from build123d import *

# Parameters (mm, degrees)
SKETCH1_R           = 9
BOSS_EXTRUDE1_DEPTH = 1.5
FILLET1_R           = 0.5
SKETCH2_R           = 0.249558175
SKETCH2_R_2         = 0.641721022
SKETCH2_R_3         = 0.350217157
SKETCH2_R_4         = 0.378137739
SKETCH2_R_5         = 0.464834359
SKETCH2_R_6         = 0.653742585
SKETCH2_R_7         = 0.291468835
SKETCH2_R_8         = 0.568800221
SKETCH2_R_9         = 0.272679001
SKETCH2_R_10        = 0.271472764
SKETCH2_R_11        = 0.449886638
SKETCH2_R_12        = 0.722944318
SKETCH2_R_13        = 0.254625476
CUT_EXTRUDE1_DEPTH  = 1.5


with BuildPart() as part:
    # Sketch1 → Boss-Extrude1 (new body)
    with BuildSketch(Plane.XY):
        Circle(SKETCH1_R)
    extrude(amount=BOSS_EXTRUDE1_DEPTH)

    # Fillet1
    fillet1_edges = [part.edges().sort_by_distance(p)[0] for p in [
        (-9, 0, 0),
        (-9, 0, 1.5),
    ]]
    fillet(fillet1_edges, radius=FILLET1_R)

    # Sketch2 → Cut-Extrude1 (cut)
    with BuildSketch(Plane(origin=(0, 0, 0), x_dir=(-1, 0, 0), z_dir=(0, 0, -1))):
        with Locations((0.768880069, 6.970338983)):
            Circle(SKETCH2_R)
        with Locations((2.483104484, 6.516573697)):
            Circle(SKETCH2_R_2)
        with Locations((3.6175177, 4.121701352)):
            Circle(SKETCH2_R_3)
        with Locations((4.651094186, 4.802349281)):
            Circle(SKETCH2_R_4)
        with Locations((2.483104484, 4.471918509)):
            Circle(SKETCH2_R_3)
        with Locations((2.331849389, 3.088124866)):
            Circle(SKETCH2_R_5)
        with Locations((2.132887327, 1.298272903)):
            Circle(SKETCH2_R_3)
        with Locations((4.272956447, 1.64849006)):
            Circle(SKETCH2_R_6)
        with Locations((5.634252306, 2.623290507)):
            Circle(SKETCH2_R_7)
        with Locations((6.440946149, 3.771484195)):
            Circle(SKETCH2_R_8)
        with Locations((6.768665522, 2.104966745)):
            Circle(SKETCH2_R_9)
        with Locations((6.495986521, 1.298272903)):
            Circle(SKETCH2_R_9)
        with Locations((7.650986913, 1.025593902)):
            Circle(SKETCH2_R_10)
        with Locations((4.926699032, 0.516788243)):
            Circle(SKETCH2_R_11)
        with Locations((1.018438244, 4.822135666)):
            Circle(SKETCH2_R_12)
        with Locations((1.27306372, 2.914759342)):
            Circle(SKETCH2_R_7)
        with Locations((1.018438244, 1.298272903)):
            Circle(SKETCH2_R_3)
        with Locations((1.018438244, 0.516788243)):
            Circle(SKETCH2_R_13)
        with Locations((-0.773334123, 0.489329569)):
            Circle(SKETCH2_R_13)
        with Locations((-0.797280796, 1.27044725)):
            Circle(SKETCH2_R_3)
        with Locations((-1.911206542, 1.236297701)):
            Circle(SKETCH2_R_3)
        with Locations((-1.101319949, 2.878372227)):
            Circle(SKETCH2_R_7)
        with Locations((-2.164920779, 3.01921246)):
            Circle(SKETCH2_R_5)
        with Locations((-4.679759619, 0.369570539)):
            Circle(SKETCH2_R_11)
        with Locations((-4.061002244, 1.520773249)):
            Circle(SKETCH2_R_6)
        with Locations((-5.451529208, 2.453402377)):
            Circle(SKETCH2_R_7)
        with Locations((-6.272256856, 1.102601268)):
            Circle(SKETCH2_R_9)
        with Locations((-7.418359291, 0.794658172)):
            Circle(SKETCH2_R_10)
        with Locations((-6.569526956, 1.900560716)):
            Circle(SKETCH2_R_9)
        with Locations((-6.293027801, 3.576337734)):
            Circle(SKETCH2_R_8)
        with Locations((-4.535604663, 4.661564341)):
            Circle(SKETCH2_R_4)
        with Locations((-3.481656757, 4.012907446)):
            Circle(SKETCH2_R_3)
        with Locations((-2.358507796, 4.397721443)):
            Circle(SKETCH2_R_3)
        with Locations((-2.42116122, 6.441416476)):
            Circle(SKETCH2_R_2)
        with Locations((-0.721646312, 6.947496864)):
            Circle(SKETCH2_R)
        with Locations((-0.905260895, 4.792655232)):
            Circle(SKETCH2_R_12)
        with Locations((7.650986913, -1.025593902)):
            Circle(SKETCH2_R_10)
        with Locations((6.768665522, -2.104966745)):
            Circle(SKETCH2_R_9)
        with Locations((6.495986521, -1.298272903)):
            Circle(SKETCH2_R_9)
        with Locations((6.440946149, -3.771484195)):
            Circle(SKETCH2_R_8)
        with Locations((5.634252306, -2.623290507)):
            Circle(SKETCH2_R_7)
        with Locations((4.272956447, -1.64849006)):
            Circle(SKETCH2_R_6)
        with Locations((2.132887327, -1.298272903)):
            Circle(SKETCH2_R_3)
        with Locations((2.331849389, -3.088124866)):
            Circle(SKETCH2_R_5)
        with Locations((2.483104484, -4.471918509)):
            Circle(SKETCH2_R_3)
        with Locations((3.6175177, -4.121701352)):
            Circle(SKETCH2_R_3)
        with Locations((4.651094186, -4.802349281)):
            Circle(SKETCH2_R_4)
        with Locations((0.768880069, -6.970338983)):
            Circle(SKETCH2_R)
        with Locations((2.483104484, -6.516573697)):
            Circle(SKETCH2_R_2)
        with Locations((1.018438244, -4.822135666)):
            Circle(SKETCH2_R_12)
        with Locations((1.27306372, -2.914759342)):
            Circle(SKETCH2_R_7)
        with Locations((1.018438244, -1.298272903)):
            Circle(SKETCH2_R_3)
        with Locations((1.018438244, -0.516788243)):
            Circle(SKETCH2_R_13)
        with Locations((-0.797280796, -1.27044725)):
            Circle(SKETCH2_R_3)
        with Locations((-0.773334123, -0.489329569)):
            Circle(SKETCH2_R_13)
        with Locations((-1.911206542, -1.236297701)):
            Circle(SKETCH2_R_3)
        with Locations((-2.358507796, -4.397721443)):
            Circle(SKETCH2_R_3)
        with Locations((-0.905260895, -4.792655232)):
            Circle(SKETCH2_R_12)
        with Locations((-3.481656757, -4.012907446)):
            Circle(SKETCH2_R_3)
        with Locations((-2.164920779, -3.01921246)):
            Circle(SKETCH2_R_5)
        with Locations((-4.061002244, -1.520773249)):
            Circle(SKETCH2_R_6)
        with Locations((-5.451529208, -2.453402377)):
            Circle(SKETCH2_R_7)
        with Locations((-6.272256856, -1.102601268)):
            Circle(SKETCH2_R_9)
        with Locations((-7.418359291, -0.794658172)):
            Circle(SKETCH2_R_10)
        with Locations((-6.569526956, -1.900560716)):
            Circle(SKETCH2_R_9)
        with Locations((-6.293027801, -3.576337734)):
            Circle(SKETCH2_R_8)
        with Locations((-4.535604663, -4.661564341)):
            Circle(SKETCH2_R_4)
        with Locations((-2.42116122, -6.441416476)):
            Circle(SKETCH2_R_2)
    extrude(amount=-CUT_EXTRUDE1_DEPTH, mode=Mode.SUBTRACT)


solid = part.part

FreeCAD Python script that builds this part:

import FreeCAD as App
import Part
import Sketcher
Q = App.Units.Quantity


def edges_at(feature, points):
    """Names of the edges that pass closest to the given points."""
    edges = feature.Shape.Edges
    near = lambda p: min(range(len(edges)), key=lambda i: edges[i].distToShape(Part.Vertex(*p))[0])
    return sorted({f"Edge{near(p) + 1}" for p in points})

doc = App.newDocument("Part")
body = doc.addObject("PartDesign::Body", "Body")

# Sketch on XY plane
sketch1 = doc.addObject("Sketcher::SketchObject", "Sketch")
body.addObject(sketch1)
sketch1.AttachmentSupport = (doc.XY_Plane, [""])
sketch1.MapMode = "FlatFace"
sketch1.addGeometry(Part.Circle(App.Vector(0, 0, 0), App.Vector(0, 0, 1), 9), False)
sketch1.addConstraint([
    Sketcher.Constraint("Coincident", 0, 3, -1, 1),
    Sketcher.Constraint("Diameter", 0, Q("18 mm")),
])
pad1 = doc.addObject("PartDesign::Pad", "Pad")
body.addObject(pad1)
pad1.Profile = sketch1
pad1.Length = 1.5
doc.recompute()

fillet = doc.addObject("PartDesign::Fillet", "Fillet")
body.addObject(fillet)
fillet.Base = (pad1, edges_at(pad1, [(-9, 0, 0), (-9, 0, 1.5)]))
fillet.Radius = 0.5

# Sketch on XY plane
sketch2 = doc.addObject("Sketcher::SketchObject", "Sketch001")
body.addObject(sketch2)
sketch2.AttachmentSupport = (doc.XY_Plane, [""])
sketch2.MapMode = "FlatFace"
sketch2.addGeometry([
    Part.Circle(App.Vector(-0.77, 6.97, 0), App.Vector(0, 0, 1), 0.25),  # 0
    Part.Circle(App.Vector(-2.48, 6.52, 0), App.Vector(0, 0, 1), 0.64),  # 1
    Part.Circle(App.Vector(-3.62, 4.12, 0), App.Vector(0, 0, 1), 0.35),  # 2
    Part.Circle(App.Vector(-4.65, 4.8, 0), App.Vector(0, 0, 1), 0.38),  # 3
    Part.Circle(App.Vector(-2.48, 4.47, 0), App.Vector(0, 0, 1), 0.35),  # 4
    Part.Circle(App.Vector(-2.33, 3.09, 0), App.Vector(0, 0, 1), 0.46),  # 5
    Part.Circle(App.Vector(-2.13, 1.3, 0), App.Vector(0, 0, 1), 0.35),  # 6
    Part.Circle(App.Vector(-4.27, 1.65, 0), App.Vector(0, 0, 1), 0.65),  # 7
    Part.Circle(App.Vector(-5.63, 2.62, 0), App.Vector(0, 0, 1), 0.29),  # 8
    Part.Circle(App.Vector(-6.44, 3.77, 0), App.Vector(0, 0, 1), 0.57),  # 9
    Part.Circle(App.Vector(-6.77, 2.1, 0), App.Vector(0, 0, 1), 0.27),  # 10
    Part.Circle(App.Vector(-6.5, 1.3, 0), App.Vector(0, 0, 1), 0.27),  # 11
    Part.Circle(App.Vector(-7.65, 1.03, 0), App.Vector(0, 0, 1), 0.27),  # 12
    Part.Circle(App.Vector(-4.93, 0.52, 0), App.Vector(0, 0, 1), 0.45),  # 13
    Part.Circle(App.Vector(-1.02, 4.82, 0), App.Vector(0, 0, 1), 0.72),  # 14
    Part.Circle(App.Vector(-1.27, 2.91, 0), App.Vector(0, 0, 1), 0.29),  # 15
    Part.Circle(App.Vector(-1.02, 1.3, 0), App.Vector(0, 0, 1), 0.35),  # 16
    Part.Circle(App.Vector(-1.02, 0.52, 0), App.Vector(0, 0, 1), 0.25),  # 17
    Part.Circle(App.Vector(0.77, 0.49, 0), App.Vector(0, 0, 1), 0.25),  # 18
    Part.Circle(App.Vector(0.8, 1.27, 0), App.Vector(0, 0, 1), 0.35),  # 19
    Part.Circle(App.Vector(1.91, 1.24, 0), App.Vector(0, 0, 1), 0.35),  # 20
    Part.Circle(App.Vector(1.1, 2.88, 0), App.Vector(0, 0, 1), 0.29),  # 21
    Part.Circle(App.Vector(2.16, 3.02, 0), App.Vector(0, 0, 1), 0.46),  # 22
    Part.Circle(App.Vector(4.68, 0.37, 0), App.Vector(0, 0, 1), 0.45),  # 23
    Part.Circle(App.Vector(4.06, 1.52, 0), App.Vector(0, 0, 1), 0.65),  # 24
    Part.Circle(App.Vector(5.45, 2.45, 0), App.Vector(0, 0, 1), 0.29),  # 25
    Part.Circle(App.Vector(6.27, 1.1, 0), App.Vector(0, 0, 1), 0.27),  # 26
    Part.Circle(App.Vector(7.42, 0.79, 0), App.Vector(0, 0, 1), 0.27),  # 27
    Part.Circle(App.Vector(6.57, 1.9, 0), App.Vector(0, 0, 1), 0.27),  # 28
    Part.Circle(App.Vector(6.29, 3.58, 0), App.Vector(0, 0, 1), 0.57),  # 29
    Part.Circle(App.Vector(4.54, 4.66, 0), App.Vector(0, 0, 1), 0.38),  # 30
    Part.Circle(App.Vector(3.48, 4.01, 0), App.Vector(0, 0, 1), 0.35),  # 31
    Part.Circle(App.Vector(2.36, 4.4, 0), App.Vector(0, 0, 1), 0.35),  # 32
    Part.Circle(App.Vector(2.42, 6.44, 0), App.Vector(0, 0, 1), 0.64),  # 33
    Part.Circle(App.Vector(0.72, 6.95, 0), App.Vector(0, 0, 1), 0.25),  # 34
    Part.Circle(App.Vector(0.91, 4.79, 0), App.Vector(0, 0, 1), 0.72),  # 35
    Part.Circle(App.Vector(-7.65, -1.03, 0), App.Vector(0, 0, 1), 0.27),  # 36
    Part.Circle(App.Vector(-6.77, -2.1, 0), App.Vector(0, 0, 1), 0.27),  # 37
    Part.Circle(App.Vector(-6.5, -1.3, 0), App.Vector(0, 0, 1), 0.27),  # 38
    Part.Circle(App.Vector(-6.44, -3.77, 0), App.Vector(0, 0, 1), 0.57),  # 39
    Part.Circle(App.Vector(-5.63, -2.62, 0), App.Vector(0, 0, 1), 0.29),  # 40
    Part.Circle(App.Vector(-4.27, -1.65, 0), App.Vector(0, 0, 1), 0.65),  # 41
    Part.Circle(App.Vector(-2.13, -1.3, 0), App.Vector(0, 0, 1), 0.35),  # 42
    Part.Circle(App.Vector(-2.33, -3.09, 0), App.Vector(0, 0, 1), 0.46),  # 43
    Part.Circle(App.Vector(-2.48, -4.47, 0), App.Vector(0, 0, 1), 0.35),  # 44
    Part.Circle(App.Vector(-3.62, -4.12, 0), App.Vector(0, 0, 1), 0.35),  # 45
    Part.Circle(App.Vector(-4.65, -4.8, 0), App.Vector(0, 0, 1), 0.38),  # 46
    Part.Circle(App.Vector(-0.77, -6.97, 0), App.Vector(0, 0, 1), 0.25),  # 47
    Part.Circle(App.Vector(-2.48, -6.52, 0), App.Vector(0, 0, 1), 0.64),  # 48
    Part.Circle(App.Vector(-1.02, -4.82, 0), App.Vector(0, 0, 1), 0.72),  # 49
    Part.Circle(App.Vector(-1.27, -2.91, 0), App.Vector(0, 0, 1), 0.29),  # 50
    Part.Circle(App.Vector(-1.02, -1.3, 0), App.Vector(0, 0, 1), 0.35),  # 51
    Part.Circle(App.Vector(-1.02, -0.52, 0), App.Vector(0, 0, 1), 0.25),  # 52
    Part.Circle(App.Vector(0.8, -1.27, 0), App.Vector(0, 0, 1), 0.35),  # 53
    Part.Circle(App.Vector(0.77, -0.49, 0), App.Vector(0, 0, 1), 0.25),  # 54
    Part.Circle(App.Vector(1.91, -1.24, 0), App.Vector(0, 0, 1), 0.35),  # 55
    Part.Circle(App.Vector(2.36, -4.4, 0), App.Vector(0, 0, 1), 0.35),  # 56
    Part.Circle(App.Vector(0.91, -4.79, 0), App.Vector(0, 0, 1), 0.72),  # 57
    Part.Circle(App.Vector(3.48, -4.01, 0), App.Vector(0, 0, 1), 0.35),  # 58
    Part.Circle(App.Vector(2.16, -3.02, 0), App.Vector(0, 0, 1), 0.46),  # 59
    Part.Circle(App.Vector(4.06, -1.52, 0), App.Vector(0, 0, 1), 0.65),  # 60
    Part.Circle(App.Vector(5.45, -2.45, 0), App.Vector(0, 0, 1), 0.29),  # 61
    Part.Circle(App.Vector(6.27, -1.1, 0), App.Vector(0, 0, 1), 0.27),  # 62
    Part.Circle(App.Vector(7.42, -0.79, 0), App.Vector(0, 0, 1), 0.27),  # 63
    Part.Circle(App.Vector(6.57, -1.9, 0), App.Vector(0, 0, 1), 0.27),  # 64
    Part.Circle(App.Vector(6.29, -3.58, 0), App.Vector(0, 0, 1), 0.57),  # 65
    Part.Circle(App.Vector(4.54, -4.66, 0), App.Vector(0, 0, 1), 0.38),  # 66
    Part.Circle(App.Vector(2.42, -6.44, 0), App.Vector(0, 0, 1), 0.64),  # 67
], False)
sketch2.addConstraint([
    Sketcher.Constraint("Equal", 2, 4),
    Sketcher.Constraint("Equal", 4, 6),
    Sketcher.Constraint("Equal", 10, 11),
    Sketcher.Constraint("Equal", 8, 15),
    Sketcher.Constraint("Equal", 6, 16),
    Sketcher.Constraint("Equal", 17, 18),
    Sketcher.Constraint("Equal", 16, 19),
    Sketcher.Constraint("Equal", 19, 20),
    Sketcher.Constraint("Equal", 15, 21),
    Sketcher.Constraint("Equal", 5, 22),
    Sketcher.Constraint("Equal", 13, 23),
    Sketcher.Constraint("Equal", 7, 24),
    Sketcher.Constraint("Equal", 21, 25),
    Sketcher.Constraint("Equal", 11, 26),
    Sketcher.Constraint("Equal", 12, 27),
    Sketcher.Constraint("Equal", 26, 28),
    Sketcher.Constraint("Equal", 9, 29),
    Sketcher.Constraint("Equal", 3, 30),
    Sketcher.Constraint("Equal", 20, 31),
    Sketcher.Constraint("Equal", 31, 32),
    Sketcher.Constraint("Equal", 1, 33),
    Sketcher.Constraint("Equal", 0, 34),
    Sketcher.Constraint("Equal", 14, 35),
    Sketcher.Constraint("Equal", 27, 36),
    Sketcher.Constraint("Equal", 28, 37),
    Sketcher.Constraint("Equal", 37, 38),
    Sketcher.Constraint("Equal", 29, 39),
    Sketcher.Constraint("Equal", 25, 40),
    Sketcher.Constraint("Equal", 24, 41),
    Sketcher.Constraint("Equal", 32, 42),
    Sketcher.Constraint("Equal", 22, 43),
    Sketcher.Constraint("Equal", 42, 44),
    Sketcher.Constraint("Equal", 44, 45),
    Sketcher.Constraint("Equal", 30, 46),
    Sketcher.Constraint("Equal", 34, 47),
    Sketcher.Constraint("Equal", 33, 48),
    Sketcher.Constraint("Equal", 35, 49),
    Sketcher.Constraint("Equal", 40, 50),
    Sketcher.Constraint("Equal", 45, 51),
    Sketcher.Constraint("Equal", 18, 52),
    Sketcher.Constraint("Equal", 51, 53),
    Sketcher.Constraint("Equal", 52, 54),
    Sketcher.Constraint("Equal", 53, 55),
    Sketcher.Constraint("Equal", 55, 56),
    Sketcher.Constraint("Equal", 49, 57),
    Sketcher.Constraint("Equal", 56, 58),
    Sketcher.Constraint("Equal", 43, 59),
    Sketcher.Constraint("Equal", 41, 60),
    Sketcher.Constraint("Equal", 50, 61),
    Sketcher.Constraint("Equal", 38, 62),
    Sketcher.Constraint("Equal", 36, 63),
    Sketcher.Constraint("Equal", 62, 64),
    Sketcher.Constraint("Equal", 39, 65),
    Sketcher.Constraint("Equal", 46, 66),
    Sketcher.Constraint("Equal", 48, 67),
    Sketcher.Constraint("Symmetric", 12, 3, 36, 3, -1),
    Sketcher.Constraint("Symmetric", 10, 3, 37, 3, -1),
    Sketcher.Constraint("Symmetric", 11, 3, 38, 3, -1),
    Sketcher.Constraint("Symmetric", 9, 3, 39, 3, -1),
    Sketcher.Constraint("Symmetric", 8, 3, 40, 3, -1),
    Sketcher.Constraint("Symmetric", 7, 3, 41, 3, -1),
    Sketcher.Constraint("Symmetric", 6, 3, 42, 3, -1),
    Sketcher.Constraint("Symmetric", 5, 3, 43, 3, -1),
    Sketcher.Constraint("Symmetric", 4, 3, 44, 3, -1),
    Sketcher.Constraint("Symmetric", 2, 3, 45, 3, -1),
    Sketcher.Constraint("Symmetric", 3, 3, 46, 3, -1),
    Sketcher.Constraint("Symmetric", 0, 3, 47, 3, -1),
    Sketcher.Constraint("Symmetric", 1, 3, 48, 3, -1),
    Sketcher.Constraint("Symmetric", 14, 3, 49, 3, -1),
    Sketcher.Constraint("Symmetric", 15, 3, 50, 3, -1),
    Sketcher.Constraint("Symmetric", 16, 3, 51, 3, -1),
    Sketcher.Constraint("Symmetric", 17, 3, 52, 3, -1),
    Sketcher.Constraint("Symmetric", 19, 3, 53, 3, -1),
    Sketcher.Constraint("Symmetric", 18, 3, 54, 3, -1),
    Sketcher.Constraint("Symmetric", 20, 3, 55, 3, -1),
    Sketcher.Constraint("Symmetric", 32, 3, 56, 3, -1),
    Sketcher.Constraint("Symmetric", 35, 3, 57, 3, -1),
    Sketcher.Constraint("Symmetric", 31, 3, 58, 3, -1),
    Sketcher.Constraint("Symmetric", 22, 3, 59, 3, -1),
    Sketcher.Constraint("Symmetric", 24, 3, 60, 3, -1),
    Sketcher.Constraint("Symmetric", 25, 3, 61, 3, -1),
    Sketcher.Constraint("Symmetric", 26, 3, 62, 3, -1),
    Sketcher.Constraint("Symmetric", 27, 3, 63, 3, -1),
    Sketcher.Constraint("Symmetric", 28, 3, 64, 3, -1),
    Sketcher.Constraint("Symmetric", 29, 3, 65, 3, -1),
    Sketcher.Constraint("Symmetric", 30, 3, 66, 3, -1),
    Sketcher.Constraint("Symmetric", 33, 3, 67, 3, -1),
    Sketcher.Constraint("Horizontal", 6, 3, 11, 3),
    Sketcher.Constraint("Horizontal", 11, 3, 16, 3),
    Sketcher.Constraint("Horizontal", 13, 3, 17, 3),
    Sketcher.Constraint("Vertical", 1, 3, 4, 3),
    Sketcher.Constraint("Vertical", 14, 3, 16, 3),
    Sketcher.Constraint("Vertical", 16, 3, 17, 3),
    Sketcher.Constraint("Diameter", 9, Q("1.1376 mm")),
    Sketcher.Constraint("Diameter", 5, Q("0.929669 mm")),
    Sketcher.Constraint("Diameter", 10, Q("0.545358 mm")),
    Sketcher.Constraint("Diameter", 14, Q("1.445889 mm")),
    Sketcher.Constraint("Diameter", 17, Q("0.509251 mm")),
    Sketcher.Constraint("Diameter", 0, Q("0.499116 mm")),
    Sketcher.Constraint("Diameter", 1, Q("1.283442 mm")),
    Sketcher.Constraint("Diameter", 2, Q("0.700434 mm")),
    Sketcher.Constraint("Diameter", 3, Q("0.756275 mm")),
    Sketcher.Constraint("Diameter", 7, Q("1.307485 mm")),
    Sketcher.Constraint("Diameter", 8, Q("0.582938 mm")),
    Sketcher.Constraint("Diameter", 12, Q("0.542946 mm")),
    Sketcher.Constraint("Diameter", 13, Q("0.899773 mm")),
    Sketcher.Constraint("DistanceY", -1, 1, 2, 3, Q("4.121701 mm")),
    Sketcher.Constraint("DistanceX", 13, 3, -1, 1, Q("4.926699 mm")),
    Sketcher.Constraint("DistanceY", -1, 1, 26, 3, Q("1.102601 mm")),
    Sketcher.Constraint("DistanceX", 0, 3, -1, 1, Q("0.76888 mm")),
    Sketcher.Constraint("DistanceY", -1, 1, 0, 3, Q("6.970339 mm")),
    Sketcher.Constraint("DistanceY", -1, 1, 3, 3, Q("4.802349 mm")),
    Sketcher.Constraint("DistanceY", -1, 1, 4, 3, Q("4.471919 mm")),
    Sketcher.Constraint("DistanceX", 5, 3, -1, 1, Q("2.331849 mm")),
    Sketcher.Constraint("DistanceY", -1, 1, 7, 3, Q("1.64849 mm")),
    Sketcher.Constraint("DistanceY", -1, 1, 8, 3, Q("2.623291 mm")),
    Sketcher.Constraint("DistanceY", -1, 1, 13, 3, Q("0.516788 mm")),
    Sketcher.Constraint("DistanceX", 14, 3, -1, 1, Q("1.018438 mm")),
    Sketcher.Constraint("DistanceY", -1, 1, 15, 3, Q("2.914759 mm")),
    Sketcher.Constraint("DistanceY", -1, 1, 18, 3, Q("0.48933 mm")),
    Sketcher.Constraint("DistanceX", -1, 1, 19, 3, Q("0.797281 mm")),
    Sketcher.Constraint("DistanceX", -1, 1, 21, 3, Q("1.10132 mm")),
    Sketcher.Constraint("DistanceX", -1, 1, 22, 3, Q("2.164921 mm")),
    Sketcher.Constraint("DistanceX", -1, 1, 23, 3, Q("4.67976 mm")),
    Sketcher.Constraint("DistanceY", -1, 1, 23, 3, Q("0.369571 mm")),
    Sketcher.Constraint("DistanceX", -1, 1, 25, 3, Q("5.451529 mm")),
    Sketcher.Constraint("DistanceX", -1, 1, 27, 3, Q("7.418359 mm")),
    Sketcher.Constraint("DistanceY", -1, 1, 27, 3, Q("0.794658 mm")),
    Sketcher.Constraint("DistanceY", -1, 1, 28, 3, Q("1.900561 mm")),
    Sketcher.Constraint("DistanceY", -1, 1, 32, 3, Q("4.397721 mm")),
    Sketcher.Constraint("DistanceX", -1, 1, 33, 3, Q("2.421161 mm")),
    Sketcher.Constraint("DistanceX", -1, 1, 35, 3, Q("0.905261 mm")),
    Sketcher.Constraint("DistanceX", 1, 3, -1, 1, Q("2.483104 mm")),
    Sketcher.Constraint("DistanceY", -1, 1, 1, 3, Q("6.516574 mm")),
    Sketcher.Constraint("DistanceX", 2, 3, -1, 1, Q("3.617518 mm")),
    Sketcher.Constraint("DistanceX", 3, 3, -1, 1, Q("4.651094 mm")),
    Sketcher.Constraint("DistanceY", -1, 1, 5, 3, Q("3.088125 mm")),
    Sketcher.Constraint("DistanceX", 6, 3, -1, 1, Q("2.132887 mm")),
    Sketcher.Constraint("DistanceY", -1, 1, 6, 3, Q("1.298273 mm")),
    Sketcher.Constraint("DistanceX", 7, 3, -1, 1, Q("4.272956 mm")),
    Sketcher.Constraint("DistanceX", 8, 3, -1, 1, Q("5.634252 mm")),
    Sketcher.Constraint("DistanceX", 9, 3, -1, 1, Q("6.440946 mm")),
    Sketcher.Constraint("DistanceY", -1, 1, 9, 3, Q("3.771484 mm")),
    Sketcher.Constraint("DistanceX", 10, 3, -1, 1, Q("6.768666 mm")),
    Sketcher.Constraint("DistanceY", -1, 1, 10, 3, Q("2.104967 mm")),
    Sketcher.Constraint("DistanceX", 11, 3, -1, 1, Q("6.495987 mm")),
    Sketcher.Constraint("DistanceX", 12, 3, -1, 1, Q("7.650987 mm")),
    Sketcher.Constraint("DistanceY", -1, 1, 12, 3, Q("1.025594 mm")),
    Sketcher.Constraint("DistanceY", -1, 1, 14, 3, Q("4.822136 mm")),
    Sketcher.Constraint("DistanceX", 15, 3, -1, 1, Q("1.273064 mm")),
    Sketcher.Constraint("DistanceX", -1, 1, 18, 3, Q("0.773334 mm")),
    Sketcher.Constraint("DistanceY", -1, 1, 19, 3, Q("1.270447 mm")),
    Sketcher.Constraint("DistanceX", -1, 1, 20, 3, Q("1.911207 mm")),
    Sketcher.Constraint("DistanceY", -1, 1, 20, 3, Q("1.236298 mm")),
    Sketcher.Constraint("DistanceY", -1, 1, 21, 3, Q("2.878372 mm")),
    Sketcher.Constraint("DistanceY", -1, 1, 22, 3, Q("3.019212 mm")),
    Sketcher.Constraint("DistanceX", -1, 1, 24, 3, Q("4.061002 mm")),
    Sketcher.Constraint("DistanceY", -1, 1, 24, 3, Q("1.520773 mm")),
    Sketcher.Constraint("DistanceY", -1, 1, 25, 3, Q("2.453402 mm")),
    Sketcher.Constraint("DistanceX", -1, 1, 26, 3, Q("6.272257 mm")),
    Sketcher.Constraint("DistanceX", -1, 1, 28, 3, Q("6.569527 mm")),
    Sketcher.Constraint("DistanceX", -1, 1, 29, 3, Q("6.293028 mm")),
    Sketcher.Constraint("DistanceY", -1, 1, 29, 3, Q("3.576338 mm")),
    Sketcher.Constraint("DistanceX", -1, 1, 30, 3, Q("4.535605 mm")),
    Sketcher.Constraint("DistanceY", -1, 1, 30, 3, Q("4.661564 mm")),
    Sketcher.Constraint("DistanceX", -1, 1, 31, 3, Q("3.481657 mm")),
    Sketcher.Constraint("DistanceY", -1, 1, 31, 3, Q("4.012907 mm")),
    Sketcher.Constraint("DistanceX", -1, 1, 32, 3, Q("2.358508 mm")),
    Sketcher.Constraint("DistanceY", -1, 1, 33, 3, Q("6.441416 mm")),
    Sketcher.Constraint("DistanceX", -1, 1, 34, 3, Q("0.721646 mm")),
    Sketcher.Constraint("DistanceY", -1, 1, 34, 3, Q("6.947497 mm")),
    Sketcher.Constraint("DistanceY", -1, 1, 35, 3, Q("4.792655 mm")),
])
pocket1 = doc.addObject("PartDesign::Pocket", "Pocket")
body.addObject(pocket1)
pocket1.Profile = sketch2
pocket1.Length = 1.5
pocket1.Reversed = True

doc.recompute()
